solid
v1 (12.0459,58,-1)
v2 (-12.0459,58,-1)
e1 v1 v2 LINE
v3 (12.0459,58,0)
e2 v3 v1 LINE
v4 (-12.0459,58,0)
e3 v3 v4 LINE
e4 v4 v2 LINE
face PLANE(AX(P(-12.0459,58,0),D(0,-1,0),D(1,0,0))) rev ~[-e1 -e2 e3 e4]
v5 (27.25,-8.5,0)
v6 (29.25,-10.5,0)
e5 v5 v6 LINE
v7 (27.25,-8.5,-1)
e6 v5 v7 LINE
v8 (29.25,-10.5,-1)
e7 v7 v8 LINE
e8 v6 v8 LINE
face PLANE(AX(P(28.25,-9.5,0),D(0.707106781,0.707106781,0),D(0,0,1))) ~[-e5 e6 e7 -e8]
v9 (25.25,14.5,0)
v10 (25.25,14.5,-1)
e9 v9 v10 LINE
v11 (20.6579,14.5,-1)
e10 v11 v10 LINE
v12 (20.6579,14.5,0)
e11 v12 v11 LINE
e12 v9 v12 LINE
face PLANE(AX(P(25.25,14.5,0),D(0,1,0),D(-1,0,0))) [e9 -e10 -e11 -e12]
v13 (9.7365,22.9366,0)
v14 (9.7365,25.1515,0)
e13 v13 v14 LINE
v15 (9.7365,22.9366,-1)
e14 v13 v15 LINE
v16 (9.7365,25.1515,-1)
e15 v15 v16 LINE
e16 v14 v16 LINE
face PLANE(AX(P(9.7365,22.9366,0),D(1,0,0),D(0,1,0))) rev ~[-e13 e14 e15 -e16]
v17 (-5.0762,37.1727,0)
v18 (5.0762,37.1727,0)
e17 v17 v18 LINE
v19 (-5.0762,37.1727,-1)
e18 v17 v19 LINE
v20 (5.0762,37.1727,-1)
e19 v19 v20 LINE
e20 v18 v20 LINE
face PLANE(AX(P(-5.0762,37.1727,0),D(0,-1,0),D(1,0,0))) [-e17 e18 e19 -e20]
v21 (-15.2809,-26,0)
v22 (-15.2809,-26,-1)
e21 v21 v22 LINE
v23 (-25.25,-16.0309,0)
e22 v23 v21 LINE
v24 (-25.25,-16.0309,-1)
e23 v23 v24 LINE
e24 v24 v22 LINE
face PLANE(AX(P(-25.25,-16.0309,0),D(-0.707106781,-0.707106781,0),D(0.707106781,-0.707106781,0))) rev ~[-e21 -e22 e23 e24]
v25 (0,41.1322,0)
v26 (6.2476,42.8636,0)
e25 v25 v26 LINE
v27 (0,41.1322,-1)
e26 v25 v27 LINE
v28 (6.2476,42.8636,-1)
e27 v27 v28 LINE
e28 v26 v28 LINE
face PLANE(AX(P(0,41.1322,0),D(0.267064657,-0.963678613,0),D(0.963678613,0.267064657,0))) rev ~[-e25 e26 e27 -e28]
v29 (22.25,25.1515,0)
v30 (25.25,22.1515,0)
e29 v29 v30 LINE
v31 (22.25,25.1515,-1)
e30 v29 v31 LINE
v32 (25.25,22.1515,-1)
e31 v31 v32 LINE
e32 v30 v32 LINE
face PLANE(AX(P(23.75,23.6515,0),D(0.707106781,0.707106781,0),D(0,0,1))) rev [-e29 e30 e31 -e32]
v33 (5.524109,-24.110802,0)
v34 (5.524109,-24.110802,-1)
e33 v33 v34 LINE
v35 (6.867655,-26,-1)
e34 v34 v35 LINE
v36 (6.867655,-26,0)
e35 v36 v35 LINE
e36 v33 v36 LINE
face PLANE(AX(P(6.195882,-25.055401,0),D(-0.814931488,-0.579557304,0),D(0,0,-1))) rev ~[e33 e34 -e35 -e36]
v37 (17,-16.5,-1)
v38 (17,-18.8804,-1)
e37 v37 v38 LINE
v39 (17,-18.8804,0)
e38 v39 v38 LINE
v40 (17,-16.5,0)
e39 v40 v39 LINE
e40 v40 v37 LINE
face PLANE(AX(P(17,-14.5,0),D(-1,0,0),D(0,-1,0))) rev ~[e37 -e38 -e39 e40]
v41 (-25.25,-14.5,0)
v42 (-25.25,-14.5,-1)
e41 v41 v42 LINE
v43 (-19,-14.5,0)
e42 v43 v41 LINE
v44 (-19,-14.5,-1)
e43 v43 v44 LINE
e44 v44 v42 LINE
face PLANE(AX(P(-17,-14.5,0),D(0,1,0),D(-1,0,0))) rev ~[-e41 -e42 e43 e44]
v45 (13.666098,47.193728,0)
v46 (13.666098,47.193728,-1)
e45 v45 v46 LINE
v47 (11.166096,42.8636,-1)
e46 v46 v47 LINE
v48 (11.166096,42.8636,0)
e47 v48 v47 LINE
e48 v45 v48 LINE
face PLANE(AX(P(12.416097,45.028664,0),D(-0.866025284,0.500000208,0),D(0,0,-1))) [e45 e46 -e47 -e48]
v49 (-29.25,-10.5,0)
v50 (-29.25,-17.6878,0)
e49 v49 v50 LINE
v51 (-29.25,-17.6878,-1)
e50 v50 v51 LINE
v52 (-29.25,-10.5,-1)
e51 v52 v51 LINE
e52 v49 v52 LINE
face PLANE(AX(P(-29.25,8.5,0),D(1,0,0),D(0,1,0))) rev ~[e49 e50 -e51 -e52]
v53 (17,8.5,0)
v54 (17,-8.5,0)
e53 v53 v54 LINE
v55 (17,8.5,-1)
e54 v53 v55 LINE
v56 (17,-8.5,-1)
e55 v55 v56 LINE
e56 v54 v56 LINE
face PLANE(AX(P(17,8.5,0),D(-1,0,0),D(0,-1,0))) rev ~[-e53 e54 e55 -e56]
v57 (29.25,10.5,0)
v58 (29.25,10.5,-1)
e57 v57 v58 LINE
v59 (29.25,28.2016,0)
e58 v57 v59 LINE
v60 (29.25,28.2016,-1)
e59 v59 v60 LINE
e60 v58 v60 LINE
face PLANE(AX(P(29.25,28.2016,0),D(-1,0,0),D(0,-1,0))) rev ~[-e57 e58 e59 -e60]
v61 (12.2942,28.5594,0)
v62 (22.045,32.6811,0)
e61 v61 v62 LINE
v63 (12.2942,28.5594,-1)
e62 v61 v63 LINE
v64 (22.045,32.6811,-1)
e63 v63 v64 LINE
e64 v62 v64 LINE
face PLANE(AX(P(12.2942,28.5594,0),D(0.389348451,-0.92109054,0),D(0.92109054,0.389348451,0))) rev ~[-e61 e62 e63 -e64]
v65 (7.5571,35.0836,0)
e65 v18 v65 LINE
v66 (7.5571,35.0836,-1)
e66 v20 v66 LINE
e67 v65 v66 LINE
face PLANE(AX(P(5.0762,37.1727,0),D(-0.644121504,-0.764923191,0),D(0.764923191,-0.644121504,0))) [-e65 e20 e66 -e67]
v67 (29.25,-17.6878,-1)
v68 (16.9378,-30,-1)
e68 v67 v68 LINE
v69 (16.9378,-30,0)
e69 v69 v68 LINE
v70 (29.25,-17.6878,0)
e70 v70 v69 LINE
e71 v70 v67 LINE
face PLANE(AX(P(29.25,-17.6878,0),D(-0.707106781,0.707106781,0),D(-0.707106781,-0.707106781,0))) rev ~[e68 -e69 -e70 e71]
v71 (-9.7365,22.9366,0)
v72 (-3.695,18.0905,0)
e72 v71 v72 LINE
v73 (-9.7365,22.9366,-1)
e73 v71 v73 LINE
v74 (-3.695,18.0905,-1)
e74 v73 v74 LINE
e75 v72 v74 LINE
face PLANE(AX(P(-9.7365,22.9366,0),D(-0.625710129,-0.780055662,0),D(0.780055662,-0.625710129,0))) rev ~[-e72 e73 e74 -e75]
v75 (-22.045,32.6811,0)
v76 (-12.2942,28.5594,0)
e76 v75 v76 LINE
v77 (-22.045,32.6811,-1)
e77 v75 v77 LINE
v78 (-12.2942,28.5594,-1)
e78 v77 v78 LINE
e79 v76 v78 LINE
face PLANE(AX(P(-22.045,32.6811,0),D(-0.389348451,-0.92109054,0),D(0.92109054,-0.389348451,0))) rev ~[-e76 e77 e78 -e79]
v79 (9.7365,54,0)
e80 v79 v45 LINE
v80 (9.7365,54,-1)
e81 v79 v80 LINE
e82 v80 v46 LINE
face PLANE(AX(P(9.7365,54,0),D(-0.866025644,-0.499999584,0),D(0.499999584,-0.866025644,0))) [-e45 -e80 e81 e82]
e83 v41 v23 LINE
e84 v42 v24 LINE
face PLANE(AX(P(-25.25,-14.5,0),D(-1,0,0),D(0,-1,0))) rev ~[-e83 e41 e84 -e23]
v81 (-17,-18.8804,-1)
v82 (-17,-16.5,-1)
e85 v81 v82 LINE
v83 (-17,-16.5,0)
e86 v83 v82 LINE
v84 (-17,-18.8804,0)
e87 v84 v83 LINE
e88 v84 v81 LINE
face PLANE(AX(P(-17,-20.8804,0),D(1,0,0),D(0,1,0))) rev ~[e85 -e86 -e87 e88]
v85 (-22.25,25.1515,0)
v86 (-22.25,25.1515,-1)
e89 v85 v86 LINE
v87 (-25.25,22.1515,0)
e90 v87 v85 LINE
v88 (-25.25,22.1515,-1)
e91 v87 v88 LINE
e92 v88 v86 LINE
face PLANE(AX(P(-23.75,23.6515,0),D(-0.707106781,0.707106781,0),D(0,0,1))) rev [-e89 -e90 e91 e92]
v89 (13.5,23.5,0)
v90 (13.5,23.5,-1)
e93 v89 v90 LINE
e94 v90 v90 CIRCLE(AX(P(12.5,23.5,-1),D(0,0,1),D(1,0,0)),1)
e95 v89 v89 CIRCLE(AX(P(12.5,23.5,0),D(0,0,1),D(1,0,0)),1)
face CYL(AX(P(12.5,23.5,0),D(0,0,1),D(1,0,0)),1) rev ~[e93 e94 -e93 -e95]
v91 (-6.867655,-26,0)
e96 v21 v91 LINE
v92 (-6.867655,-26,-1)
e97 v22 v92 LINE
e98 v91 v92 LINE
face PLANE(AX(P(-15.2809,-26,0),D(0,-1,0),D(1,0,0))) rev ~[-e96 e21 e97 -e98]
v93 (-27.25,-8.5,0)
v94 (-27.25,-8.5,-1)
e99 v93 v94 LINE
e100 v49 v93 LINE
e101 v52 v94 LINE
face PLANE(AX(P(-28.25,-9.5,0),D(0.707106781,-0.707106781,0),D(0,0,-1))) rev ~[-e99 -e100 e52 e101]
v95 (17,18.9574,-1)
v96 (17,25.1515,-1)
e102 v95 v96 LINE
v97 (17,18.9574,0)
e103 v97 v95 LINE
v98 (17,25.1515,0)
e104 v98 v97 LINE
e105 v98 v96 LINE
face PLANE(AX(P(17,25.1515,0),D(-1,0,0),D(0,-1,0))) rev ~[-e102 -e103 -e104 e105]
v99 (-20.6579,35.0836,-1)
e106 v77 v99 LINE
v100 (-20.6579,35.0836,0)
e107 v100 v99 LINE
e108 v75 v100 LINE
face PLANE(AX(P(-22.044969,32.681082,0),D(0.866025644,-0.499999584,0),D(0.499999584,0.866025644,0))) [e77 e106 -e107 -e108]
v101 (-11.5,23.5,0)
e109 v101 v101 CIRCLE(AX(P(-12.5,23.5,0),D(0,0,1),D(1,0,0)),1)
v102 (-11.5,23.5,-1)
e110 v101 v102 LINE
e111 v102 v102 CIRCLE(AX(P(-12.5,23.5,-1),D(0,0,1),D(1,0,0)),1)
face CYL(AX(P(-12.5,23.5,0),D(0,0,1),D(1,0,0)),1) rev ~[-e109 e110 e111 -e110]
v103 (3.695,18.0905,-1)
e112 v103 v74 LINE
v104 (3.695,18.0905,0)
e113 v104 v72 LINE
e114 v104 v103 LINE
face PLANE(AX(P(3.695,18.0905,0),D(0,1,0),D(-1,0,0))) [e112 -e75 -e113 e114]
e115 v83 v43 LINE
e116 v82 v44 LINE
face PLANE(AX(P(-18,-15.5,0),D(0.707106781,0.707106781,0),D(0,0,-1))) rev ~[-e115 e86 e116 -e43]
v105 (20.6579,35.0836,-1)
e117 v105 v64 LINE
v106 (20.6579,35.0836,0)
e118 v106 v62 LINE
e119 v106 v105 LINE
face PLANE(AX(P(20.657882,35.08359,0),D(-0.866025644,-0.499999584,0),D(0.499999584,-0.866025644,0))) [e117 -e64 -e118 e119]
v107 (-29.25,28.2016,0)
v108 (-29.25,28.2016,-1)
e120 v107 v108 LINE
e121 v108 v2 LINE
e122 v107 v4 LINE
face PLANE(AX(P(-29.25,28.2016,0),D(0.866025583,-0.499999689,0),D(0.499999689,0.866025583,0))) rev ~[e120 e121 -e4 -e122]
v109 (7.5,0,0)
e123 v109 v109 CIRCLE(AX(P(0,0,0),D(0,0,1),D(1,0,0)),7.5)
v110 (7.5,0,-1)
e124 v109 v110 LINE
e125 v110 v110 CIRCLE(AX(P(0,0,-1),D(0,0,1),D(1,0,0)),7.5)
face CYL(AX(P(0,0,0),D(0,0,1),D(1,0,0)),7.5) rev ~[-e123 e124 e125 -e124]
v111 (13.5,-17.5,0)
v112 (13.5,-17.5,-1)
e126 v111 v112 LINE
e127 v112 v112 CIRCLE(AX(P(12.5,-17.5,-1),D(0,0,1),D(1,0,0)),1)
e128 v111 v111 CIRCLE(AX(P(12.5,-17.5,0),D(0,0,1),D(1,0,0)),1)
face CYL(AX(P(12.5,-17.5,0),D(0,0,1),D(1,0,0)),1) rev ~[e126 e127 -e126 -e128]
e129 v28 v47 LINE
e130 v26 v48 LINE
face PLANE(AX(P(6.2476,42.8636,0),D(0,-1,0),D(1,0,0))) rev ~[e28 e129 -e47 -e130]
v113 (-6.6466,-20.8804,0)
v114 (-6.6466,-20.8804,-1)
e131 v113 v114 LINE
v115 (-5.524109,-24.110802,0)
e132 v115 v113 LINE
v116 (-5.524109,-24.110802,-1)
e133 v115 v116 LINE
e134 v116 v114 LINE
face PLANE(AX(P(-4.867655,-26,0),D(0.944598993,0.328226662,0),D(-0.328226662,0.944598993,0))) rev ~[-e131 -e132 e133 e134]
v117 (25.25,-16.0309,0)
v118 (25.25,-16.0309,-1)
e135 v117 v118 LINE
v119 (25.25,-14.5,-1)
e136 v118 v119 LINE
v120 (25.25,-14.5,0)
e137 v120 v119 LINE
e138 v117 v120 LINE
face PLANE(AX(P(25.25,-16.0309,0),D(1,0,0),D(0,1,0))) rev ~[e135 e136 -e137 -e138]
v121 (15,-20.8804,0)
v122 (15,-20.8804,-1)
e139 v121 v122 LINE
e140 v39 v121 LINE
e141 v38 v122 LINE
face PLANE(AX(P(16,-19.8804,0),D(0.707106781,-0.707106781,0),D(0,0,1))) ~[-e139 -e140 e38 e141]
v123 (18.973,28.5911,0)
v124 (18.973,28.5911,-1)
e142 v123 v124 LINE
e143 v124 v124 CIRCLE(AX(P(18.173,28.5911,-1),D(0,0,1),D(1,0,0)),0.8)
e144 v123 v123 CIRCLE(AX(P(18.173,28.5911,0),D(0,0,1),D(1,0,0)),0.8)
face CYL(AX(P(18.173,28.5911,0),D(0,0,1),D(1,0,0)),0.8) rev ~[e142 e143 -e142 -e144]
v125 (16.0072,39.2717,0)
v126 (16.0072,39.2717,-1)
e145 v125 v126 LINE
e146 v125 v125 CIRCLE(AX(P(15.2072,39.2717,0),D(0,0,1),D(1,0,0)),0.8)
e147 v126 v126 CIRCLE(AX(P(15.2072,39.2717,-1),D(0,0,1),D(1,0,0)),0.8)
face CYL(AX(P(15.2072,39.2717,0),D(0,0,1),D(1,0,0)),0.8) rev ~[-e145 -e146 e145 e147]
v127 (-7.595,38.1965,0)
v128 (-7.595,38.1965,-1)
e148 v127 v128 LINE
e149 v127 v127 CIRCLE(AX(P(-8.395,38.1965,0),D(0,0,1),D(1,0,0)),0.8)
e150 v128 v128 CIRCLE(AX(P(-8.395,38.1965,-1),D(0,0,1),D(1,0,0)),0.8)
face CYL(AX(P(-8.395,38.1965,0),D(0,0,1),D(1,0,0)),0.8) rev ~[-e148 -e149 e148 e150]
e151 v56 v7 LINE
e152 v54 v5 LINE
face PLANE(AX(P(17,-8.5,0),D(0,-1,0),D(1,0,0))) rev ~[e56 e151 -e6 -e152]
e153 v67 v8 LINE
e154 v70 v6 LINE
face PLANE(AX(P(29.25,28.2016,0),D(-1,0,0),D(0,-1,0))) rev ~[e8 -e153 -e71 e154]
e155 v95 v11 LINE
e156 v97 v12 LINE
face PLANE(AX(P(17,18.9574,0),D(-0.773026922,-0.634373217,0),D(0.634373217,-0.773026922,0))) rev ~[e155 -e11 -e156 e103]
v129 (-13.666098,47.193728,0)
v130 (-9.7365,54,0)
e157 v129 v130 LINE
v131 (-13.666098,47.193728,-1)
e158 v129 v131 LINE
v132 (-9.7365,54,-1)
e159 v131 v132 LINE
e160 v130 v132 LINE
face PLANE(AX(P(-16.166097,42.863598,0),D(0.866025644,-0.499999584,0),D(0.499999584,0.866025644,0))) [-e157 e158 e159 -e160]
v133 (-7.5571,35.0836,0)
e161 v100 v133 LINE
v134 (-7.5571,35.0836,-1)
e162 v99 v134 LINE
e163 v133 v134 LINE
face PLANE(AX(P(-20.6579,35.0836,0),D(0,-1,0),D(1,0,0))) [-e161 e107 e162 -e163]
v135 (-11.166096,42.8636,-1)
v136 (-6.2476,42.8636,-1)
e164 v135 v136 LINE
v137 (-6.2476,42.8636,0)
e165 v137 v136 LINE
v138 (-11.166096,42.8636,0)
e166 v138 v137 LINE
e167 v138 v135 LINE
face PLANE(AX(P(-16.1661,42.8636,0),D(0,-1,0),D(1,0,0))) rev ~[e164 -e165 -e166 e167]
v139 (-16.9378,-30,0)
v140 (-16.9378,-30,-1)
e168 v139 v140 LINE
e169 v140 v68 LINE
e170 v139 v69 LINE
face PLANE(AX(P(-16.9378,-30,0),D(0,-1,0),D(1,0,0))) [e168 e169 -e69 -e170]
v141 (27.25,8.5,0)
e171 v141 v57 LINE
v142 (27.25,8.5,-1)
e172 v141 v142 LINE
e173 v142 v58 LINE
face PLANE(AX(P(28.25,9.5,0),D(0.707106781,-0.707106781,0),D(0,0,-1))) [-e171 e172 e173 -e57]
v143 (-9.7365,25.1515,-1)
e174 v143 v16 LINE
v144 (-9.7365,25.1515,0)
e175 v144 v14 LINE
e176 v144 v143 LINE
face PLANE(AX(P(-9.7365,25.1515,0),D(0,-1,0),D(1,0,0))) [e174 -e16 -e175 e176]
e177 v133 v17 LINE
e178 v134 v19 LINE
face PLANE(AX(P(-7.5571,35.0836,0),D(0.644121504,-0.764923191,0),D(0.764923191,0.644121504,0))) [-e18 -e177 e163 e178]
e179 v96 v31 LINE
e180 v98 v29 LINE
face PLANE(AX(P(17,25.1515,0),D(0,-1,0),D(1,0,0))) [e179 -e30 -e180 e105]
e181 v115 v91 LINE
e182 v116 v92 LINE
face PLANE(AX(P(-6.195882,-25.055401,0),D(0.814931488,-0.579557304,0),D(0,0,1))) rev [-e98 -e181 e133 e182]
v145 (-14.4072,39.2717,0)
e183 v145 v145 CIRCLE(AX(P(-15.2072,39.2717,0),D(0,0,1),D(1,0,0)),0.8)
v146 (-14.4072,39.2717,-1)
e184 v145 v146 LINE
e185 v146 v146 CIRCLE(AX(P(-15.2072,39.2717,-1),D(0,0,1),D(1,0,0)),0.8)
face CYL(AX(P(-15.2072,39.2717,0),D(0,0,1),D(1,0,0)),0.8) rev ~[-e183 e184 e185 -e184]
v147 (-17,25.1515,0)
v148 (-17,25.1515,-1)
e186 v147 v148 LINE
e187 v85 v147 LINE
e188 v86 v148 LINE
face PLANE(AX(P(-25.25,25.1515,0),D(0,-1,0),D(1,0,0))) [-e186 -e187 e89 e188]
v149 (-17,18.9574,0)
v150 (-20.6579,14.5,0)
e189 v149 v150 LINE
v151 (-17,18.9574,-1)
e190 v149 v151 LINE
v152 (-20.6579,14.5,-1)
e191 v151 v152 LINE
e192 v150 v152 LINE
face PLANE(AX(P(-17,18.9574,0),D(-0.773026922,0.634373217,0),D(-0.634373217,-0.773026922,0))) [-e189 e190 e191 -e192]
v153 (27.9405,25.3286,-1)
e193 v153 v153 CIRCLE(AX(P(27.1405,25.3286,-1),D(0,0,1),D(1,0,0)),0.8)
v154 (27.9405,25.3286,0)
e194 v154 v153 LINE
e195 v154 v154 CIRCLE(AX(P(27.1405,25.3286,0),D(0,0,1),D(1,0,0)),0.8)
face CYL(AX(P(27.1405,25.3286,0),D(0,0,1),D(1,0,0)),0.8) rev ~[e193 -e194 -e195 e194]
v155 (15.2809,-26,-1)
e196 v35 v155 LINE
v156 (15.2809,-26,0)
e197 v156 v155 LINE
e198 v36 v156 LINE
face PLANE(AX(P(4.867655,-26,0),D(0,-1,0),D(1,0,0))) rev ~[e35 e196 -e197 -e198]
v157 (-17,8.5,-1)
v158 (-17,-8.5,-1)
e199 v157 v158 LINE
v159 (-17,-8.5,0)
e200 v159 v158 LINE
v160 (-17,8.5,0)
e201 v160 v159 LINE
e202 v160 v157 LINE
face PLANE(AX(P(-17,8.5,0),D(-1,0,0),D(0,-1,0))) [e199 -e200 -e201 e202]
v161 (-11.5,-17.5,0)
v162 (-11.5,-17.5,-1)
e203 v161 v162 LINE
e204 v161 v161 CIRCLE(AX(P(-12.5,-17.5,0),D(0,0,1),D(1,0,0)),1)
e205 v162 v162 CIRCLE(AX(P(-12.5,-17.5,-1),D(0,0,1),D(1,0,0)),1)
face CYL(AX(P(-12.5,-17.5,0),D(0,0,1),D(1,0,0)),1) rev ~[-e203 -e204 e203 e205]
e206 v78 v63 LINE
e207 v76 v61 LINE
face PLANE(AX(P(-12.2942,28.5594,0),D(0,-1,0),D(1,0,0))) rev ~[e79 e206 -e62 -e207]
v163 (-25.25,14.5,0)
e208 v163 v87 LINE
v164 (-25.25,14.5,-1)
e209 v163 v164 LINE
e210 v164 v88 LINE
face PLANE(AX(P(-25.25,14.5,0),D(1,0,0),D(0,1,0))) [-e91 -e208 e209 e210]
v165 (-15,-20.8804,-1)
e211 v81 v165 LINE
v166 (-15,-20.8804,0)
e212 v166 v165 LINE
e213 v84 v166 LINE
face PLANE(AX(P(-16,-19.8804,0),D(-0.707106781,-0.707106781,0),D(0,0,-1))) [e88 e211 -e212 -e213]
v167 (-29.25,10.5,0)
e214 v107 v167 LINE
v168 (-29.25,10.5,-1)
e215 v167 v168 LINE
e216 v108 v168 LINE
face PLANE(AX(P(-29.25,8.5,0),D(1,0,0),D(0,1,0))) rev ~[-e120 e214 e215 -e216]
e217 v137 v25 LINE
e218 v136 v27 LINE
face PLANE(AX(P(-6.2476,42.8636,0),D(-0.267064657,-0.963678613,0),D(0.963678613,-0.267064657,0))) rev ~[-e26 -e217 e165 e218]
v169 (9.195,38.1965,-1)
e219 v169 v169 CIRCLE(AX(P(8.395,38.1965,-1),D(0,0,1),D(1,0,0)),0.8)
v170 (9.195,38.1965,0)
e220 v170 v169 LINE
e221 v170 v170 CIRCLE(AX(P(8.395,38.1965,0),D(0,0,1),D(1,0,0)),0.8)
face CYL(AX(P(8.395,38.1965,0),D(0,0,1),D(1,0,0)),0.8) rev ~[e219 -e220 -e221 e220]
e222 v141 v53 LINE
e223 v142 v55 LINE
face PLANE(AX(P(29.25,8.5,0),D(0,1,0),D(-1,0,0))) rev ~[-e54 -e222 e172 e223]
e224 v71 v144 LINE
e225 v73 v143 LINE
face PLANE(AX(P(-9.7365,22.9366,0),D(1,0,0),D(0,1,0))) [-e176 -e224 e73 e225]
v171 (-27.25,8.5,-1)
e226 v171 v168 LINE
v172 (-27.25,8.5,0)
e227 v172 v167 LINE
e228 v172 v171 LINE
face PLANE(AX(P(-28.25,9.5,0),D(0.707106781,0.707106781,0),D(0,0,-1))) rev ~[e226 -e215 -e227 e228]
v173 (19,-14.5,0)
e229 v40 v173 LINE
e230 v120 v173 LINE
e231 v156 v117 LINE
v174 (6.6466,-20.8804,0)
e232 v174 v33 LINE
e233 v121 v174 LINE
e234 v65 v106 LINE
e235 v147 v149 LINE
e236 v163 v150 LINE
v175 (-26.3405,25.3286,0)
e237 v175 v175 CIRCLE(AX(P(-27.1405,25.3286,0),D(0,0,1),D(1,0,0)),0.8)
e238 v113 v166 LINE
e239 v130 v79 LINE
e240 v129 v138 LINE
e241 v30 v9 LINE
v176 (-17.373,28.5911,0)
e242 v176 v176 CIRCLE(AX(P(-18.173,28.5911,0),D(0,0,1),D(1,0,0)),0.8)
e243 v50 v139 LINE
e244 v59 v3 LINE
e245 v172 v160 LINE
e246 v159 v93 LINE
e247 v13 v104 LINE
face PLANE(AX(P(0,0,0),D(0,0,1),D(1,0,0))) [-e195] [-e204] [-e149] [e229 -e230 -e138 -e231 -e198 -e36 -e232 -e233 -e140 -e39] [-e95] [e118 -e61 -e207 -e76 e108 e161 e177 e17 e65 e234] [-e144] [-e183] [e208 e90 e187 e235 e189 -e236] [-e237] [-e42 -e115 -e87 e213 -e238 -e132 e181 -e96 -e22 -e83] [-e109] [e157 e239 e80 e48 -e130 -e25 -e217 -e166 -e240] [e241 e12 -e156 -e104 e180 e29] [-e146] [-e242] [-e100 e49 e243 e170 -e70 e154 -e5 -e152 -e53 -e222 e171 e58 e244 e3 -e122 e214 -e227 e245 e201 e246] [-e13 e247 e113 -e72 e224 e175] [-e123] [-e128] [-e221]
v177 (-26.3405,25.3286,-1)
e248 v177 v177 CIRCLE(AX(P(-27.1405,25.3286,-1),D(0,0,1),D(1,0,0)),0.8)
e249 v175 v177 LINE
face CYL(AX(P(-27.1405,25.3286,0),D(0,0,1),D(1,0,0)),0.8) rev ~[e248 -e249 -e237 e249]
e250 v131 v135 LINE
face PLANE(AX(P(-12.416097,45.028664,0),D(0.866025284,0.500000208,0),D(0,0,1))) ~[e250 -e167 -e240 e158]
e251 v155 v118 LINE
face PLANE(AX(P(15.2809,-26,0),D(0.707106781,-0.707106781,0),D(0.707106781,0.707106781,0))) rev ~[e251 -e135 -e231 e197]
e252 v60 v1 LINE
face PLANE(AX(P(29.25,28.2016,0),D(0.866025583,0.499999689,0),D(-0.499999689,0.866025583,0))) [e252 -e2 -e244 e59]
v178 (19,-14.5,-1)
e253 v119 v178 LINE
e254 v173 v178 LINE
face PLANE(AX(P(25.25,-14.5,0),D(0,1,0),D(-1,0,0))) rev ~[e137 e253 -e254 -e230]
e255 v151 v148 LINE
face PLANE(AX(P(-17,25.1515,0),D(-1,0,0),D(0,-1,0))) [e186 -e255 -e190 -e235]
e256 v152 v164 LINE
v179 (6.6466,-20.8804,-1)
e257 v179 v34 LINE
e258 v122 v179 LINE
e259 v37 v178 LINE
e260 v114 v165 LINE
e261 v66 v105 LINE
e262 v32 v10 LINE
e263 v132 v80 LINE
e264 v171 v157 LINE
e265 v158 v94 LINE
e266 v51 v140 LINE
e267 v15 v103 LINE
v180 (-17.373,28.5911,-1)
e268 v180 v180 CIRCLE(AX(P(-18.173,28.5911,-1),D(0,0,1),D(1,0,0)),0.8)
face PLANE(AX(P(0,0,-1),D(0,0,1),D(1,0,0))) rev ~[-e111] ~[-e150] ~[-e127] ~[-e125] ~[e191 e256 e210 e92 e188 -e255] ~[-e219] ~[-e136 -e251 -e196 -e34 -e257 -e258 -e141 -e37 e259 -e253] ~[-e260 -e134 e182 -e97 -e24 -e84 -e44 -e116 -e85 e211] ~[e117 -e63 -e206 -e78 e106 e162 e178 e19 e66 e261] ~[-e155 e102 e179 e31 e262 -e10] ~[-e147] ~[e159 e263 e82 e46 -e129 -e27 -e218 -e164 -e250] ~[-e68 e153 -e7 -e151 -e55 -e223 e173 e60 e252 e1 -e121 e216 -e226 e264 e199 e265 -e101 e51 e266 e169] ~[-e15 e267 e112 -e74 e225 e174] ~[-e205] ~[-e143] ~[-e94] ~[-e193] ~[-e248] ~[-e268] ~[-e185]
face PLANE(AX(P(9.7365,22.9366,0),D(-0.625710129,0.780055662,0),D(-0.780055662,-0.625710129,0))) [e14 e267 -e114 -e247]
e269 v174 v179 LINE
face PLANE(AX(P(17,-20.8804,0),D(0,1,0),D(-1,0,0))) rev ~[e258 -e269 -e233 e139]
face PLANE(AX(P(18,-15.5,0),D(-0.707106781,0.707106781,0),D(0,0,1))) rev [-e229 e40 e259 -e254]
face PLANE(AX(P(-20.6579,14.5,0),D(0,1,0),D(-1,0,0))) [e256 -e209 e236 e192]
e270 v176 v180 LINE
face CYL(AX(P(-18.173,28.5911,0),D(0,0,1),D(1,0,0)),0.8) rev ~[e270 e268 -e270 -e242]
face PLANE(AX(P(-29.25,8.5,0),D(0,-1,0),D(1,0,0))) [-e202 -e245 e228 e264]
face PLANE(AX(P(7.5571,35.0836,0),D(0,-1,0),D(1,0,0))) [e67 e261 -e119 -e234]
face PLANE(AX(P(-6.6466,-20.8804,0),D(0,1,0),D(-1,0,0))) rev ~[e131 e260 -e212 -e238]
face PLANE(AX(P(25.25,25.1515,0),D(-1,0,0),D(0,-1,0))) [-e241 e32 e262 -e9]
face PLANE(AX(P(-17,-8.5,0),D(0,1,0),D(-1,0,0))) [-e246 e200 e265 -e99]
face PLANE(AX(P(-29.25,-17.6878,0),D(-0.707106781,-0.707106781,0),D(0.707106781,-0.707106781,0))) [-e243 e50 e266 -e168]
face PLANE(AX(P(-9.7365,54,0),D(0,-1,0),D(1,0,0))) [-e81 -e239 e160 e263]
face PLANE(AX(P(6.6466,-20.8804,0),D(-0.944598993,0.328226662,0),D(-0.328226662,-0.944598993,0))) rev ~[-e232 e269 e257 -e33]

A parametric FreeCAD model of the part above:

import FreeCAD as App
import Part
import Sketcher
Q = App.Units.Quantity


def edges_at(feature, points):
    """Names of the edges that pass closest to the given points."""
    edges = feature.Shape.Edges
    near = lambda p: min(range(len(edges)), key=lambda i: edges[i].distToShape(Part.Vertex(*p))[0])
    return sorted({f"Edge{near(p) + 1}" for p in points})


def add_polygon(sketch, points):
    """Adds a closed chain of lines whose ends are joined by coincident constraints."""
    first, n = sketch.GeometryCount, len(points)
    for a, b in zip(points, points[1:] + points[:1]):
        sketch.addGeometry(Part.LineSegment(App.Vector(*a, 0), App.Vector(*b, 0)), False)
    for i in range(n):
        sketch.addConstraint(Sketcher.Constraint("Coincident", first + i, 2, first + (i + 1) % n, 1))

doc = App.newDocument("Part")
body = doc.addObject("PartDesign::Body", "Body")

sketch1 = doc.addObject("Sketcher::SketchObject", "Sketch")
body.addObject(sketch1)
sketch1.AttachmentSupport = (doc.XY_Plane, [""])
sketch1.MapMode = "FlatFace"
add_polygon(sketch1, [(29.25, 58), (-29.25, 58), (-29.25, -30), (29.25, -30)])
sketch1.addConstraint([
    Sketcher.Constraint("Horizontal", 0),
    Sketcher.Constraint("Vertical", 1),
    Sketcher.Constraint("Horizontal", 2),
    Sketcher.Constraint("Vertical", 3),
    Sketcher.Constraint("DistanceY", 1, 2, 1, 1, 88.0),
    Sketcher.Constraint("DistanceX", 0, 2, 0, 1, 58.5),
    Sketcher.Constraint("DistanceY", -1, 1, 0, 2, 58.0),
    Sketcher.Constraint("DistanceX", 0, 2, -1, 1, 29.25),
])
pad1 = doc.addObject("PartDesign::Pad", "Pad")
body.addObject(pad1)
pad1.Profile = sketch1
pad1.Length = 1
pad1.Reversed = True

sketch2 = doc.addObject("Sketcher::SketchObject", "Sketch001")
body.addObject(sketch2)
sketch2.AttachmentSupport = (doc.XY_Plane, [""])
sketch2.MapMode = "FlatFace"
sketch2.addGeometry([
    Part.Circle(App.Vector(-12.5, -17.5, 0), App.Vector(0, 0, 1), 1),
    Part.Circle(App.Vector(12.5, -17.5, 0), App.Vector(0, 0, 1), 1),
    Part.Circle(App.Vector(12.5, 23.5, 0), App.Vector(0, 0, 1), 1),
    Part.Circle(App.Vector(-12.5, 23.5, 0), App.Vector(0, 0, 1), 1),
], False)
sketch2.addConstraint([
    Sketcher.Constraint("Equal", 0, 1),
    Sketcher.Constraint("Equal", 1, 2),
    Sketcher.Constraint("Equal", 2, 3),
    Sketcher.Constraint("Symmetric", 0, 3, 1, 3, -2),
    Sketcher.Constraint("Symmetric", 2, 3, 3, 3, -2),
    Sketcher.Constraint("Vertical", 1, 3, 2, 3),
    Sketcher.Constraint("Diameter", 0, 2.0),
    Sketcher.Constraint("DistanceX", 0, 3, 1, 3, 25.0),
    Sketcher.Constraint("DistanceY", 1, 3, 2, 3, 41.0),
    Sketcher.Constraint("DistanceY", 0, 3, -1, 1, 17.5),
])
pocket1 = doc.addObject("PartDesign::Pocket", "Pocket")
body.addObject(pocket1)
pocket1.Profile = sketch2
pocket1.Length = 1

sketch3 = doc.addObject("Sketcher::SketchObject", "Sketch002")
body.addObject(sketch3)
sketch3.AttachmentSupport = (doc.XY_Plane, [""])
sketch3.MapMode = "FlatFace"
sketch3.addGeometry(Part.Circle(App.Vector(0, 0, 0), App.Vector(0, 0, 1), 7.5), False)
sketch3.addConstraint([
    Sketcher.Constraint("Coincident", 0, 3, -1, 1),
    Sketcher.Constraint("Diameter", 0, 15.0),
])
pocket2 = doc.addObject("PartDesign::Pocket", "Pocket001")
body.addObject(pocket2)
pocket2.Profile = sketch3
pocket2.Length = 1

sketch4 = doc.addObject("Sketcher::SketchObject", "Sketch003")
body.addObject(sketch4)
sketch4.AttachmentSupport = (doc.XY_Plane, [""])
sketch4.MapMode = "FlatFace"
add_polygon(sketch4, [(29.25, -8.5), (29.25, 8.5), (17, 8.5), (17, -8.5)])
add_polygon(sketch4, [(-17, 8.5), (-29.25, 8.5), (-29.25, -8.5), (-17, -8.5)])
sketch4.addConstraint([
    Sketcher.Constraint("Vertical", 0),
    Sketcher.Constraint("Horizontal", 1),
    Sketcher.Constraint("Vertical", 2),
    Sketcher.Constraint("Horizontal", 3),
    Sketcher.Constraint("Horizontal", 4),
    Sketcher.Constraint("Vertical", 5),
    Sketcher.Constraint("Horizontal", 6),
    Sketcher.Constraint("Vertical", 7),
    Sketcher.Constraint("Symmetric", 3, 2, 4, 2, -1, 1),
    Sketcher.Constraint("Symmetric", 1, 2, 6, 2, -1, 1),
    Sketcher.Constraint("Horizontal", 1, 2, 4, 2),
    Sketcher.Constraint("DistanceY", 0, 1, 0, 2, 17.0),
    Sketcher.Constraint("DistanceX", -1, 1, 1, 2, 17.0),
    Sketcher.Constraint("DistanceX", 4, 2, 0, 2, 58.5),
])
pocket3 = doc.addObject("PartDesign::Pocket", "Pocket002")
body.addObject(pocket3)
pocket3.Profile = sketch4
pocket3.Length = 1

sketch5 = doc.addObject("Sketcher::SketchObject", "Sketch004")
body.addObject(sketch5)
sketch5.AttachmentSupport = (doc.XY_Plane, [""])
sketch5.MapMode = "FlatFace"
sketch5.addGeometry([
    Part.Circle(App.Vector(-8.395, 38.1965, 0), App.Vector(0, 0, 1), 0.8),
    Part.Circle(App.Vector(-15.2072, 39.2717, 0), App.Vector(0, 0, 1), 0.8),
    Part.Circle(App.Vector(8.395, 38.1965, 0), App.Vector(0, 0, 1), 0.8),
    Part.Circle(App.Vector(15.2072, 39.2717, 0), App.Vector(0, 0, 1), 0.8),
    Part.Circle(App.Vector(18.173, 28.5911, 0), App.Vector(0, 0, 1), 0.8),
    Part.Circle(App.Vector(27.1405, 25.3286, 0), App.Vector(0, 0, 1), 0.8),
], False)
sketch5.addConstraint([
    Sketcher.Constraint("Equal", 0, 1),
    Sketcher.Constraint("Equal", 1, 2),
    Sketcher.Constraint("Equal", 2, 3),
    Sketcher.Constraint("Equal", 3, 4),
    Sketcher.Constraint("Equal", 4, 5),
    Sketcher.Constraint("Symmetric", 0, 3, 2, 3, -2),
    Sketcher.Constraint("Symmetric", 1, 3, 3, 3, -2),
    Sketcher.Constraint("Diameter", 0, 1.6),
    Sketcher.Constraint("DistanceX", 0, 3, 2, 3, 16.79),
    Sketcher.Constraint("DistanceX", -1, 1, 4, 3, 18.173),
    Sketcher.Constraint("DistanceY", -1, 1, 4, 3, 28.591),
    Sketcher.Constraint("DistanceY", 5, 3, 3, 3, 13.943),
    Sketcher.Constraint("DistanceY", 5, 3, 2, 3, 12.868),
    Sketcher.Constraint("DistanceY", -1, 1, 0, 3, 38.1965),
    Sketcher.Constraint("DistanceX", 1, 3, -1, 1, 15.2072),
    Sketcher.Constraint("DistanceX", -1, 1, 5, 3, 27.1405),
])
pocket4 = doc.addObject("PartDesign::Pocket", "Pocket003")
body.addObject(pocket4)
pocket4.Profile = sketch5
pocket4.Length = 1

sketch6 = doc.addObject("Sketcher::SketchObject", "Sketch005")
body.addObject(sketch6)
sketch6.AttachmentSupport = (doc.XY_Plane, [""])
sketch6.MapMode = "FlatFace"
sketch6.addGeometry([
    Part.Circle(App.Vector(-18.173, 28.5911, 0), App.Vector(0, 0, 1), 0.8),
    Part.Circle(App.Vector(-27.1405, 25.3286, 0), App.Vector(0, 0, 1), 0.8),
], False)
sketch6.addConstraint([
    Sketcher.Constraint("Equal", 0, 1),
    Sketcher.Constraint("Diameter", 0, 1.6),
    Sketcher.Constraint("DistanceX", 0, 3, -1, 1, 18.173),
    Sketcher.Constraint("DistanceY", -1, 1, 0, 3, 28.591),
    Sketcher.Constraint("DistanceX", 1, 3, -1, 1, 27.1405),
    Sketcher.Constraint("DistanceY", -1, 1, 1, 3, 25.3286),
])
pocket5 = doc.addObject("PartDesign::Pocket", "Pocket004")
body.addObject(pocket5)
pocket5.Profile = sketch6
pocket5.Length = 10

sketch7 = doc.addObject("Sketcher::SketchObject", "Sketch006")
body.addObject(sketch7)
sketch7.AttachmentSupport = (doc.XY_Plane, [""])
sketch7.MapMode = "FlatFace"
add_polygon(sketch7, [(29.25, 28.2016), (29.25, 58), (12.0459, 58)])
add_polygon(sketch7, [(-29.25, 28.2016), (-12.0459, 58), (-29.25, 58)])
add_polygon(sketch7, [(29.25, -30), (29.25, -17.6878), (16.9378, -30)])
add_polygon(sketch7, [(-29.25, -30), (-16.9378, -30), (-29.25, -17.6878)])
add_polygon(sketch7, [(9.7365, 54), (-9.7365, 54), (-16.1661, 42.8636), (-6.2476, 42.8636), (0, 41.1322), (6.2476, 42.8636), (16.166097, 42.863598)])
add_polygon(sketch7, [(-7.5571, 35.0836), (-20.657882, 35.08359), (-22.045, 32.6811), (-12.2942, 28.5594), (12.2942, 28.5594), (22.044969, 32.681082), (20.6579, 35.0836), (7.5571, 35.0836), (5.0762, 37.1727), (-5.0762, 37.1727)])
add_polygon(sketch7, [(-17, 25.1515), (-25.25, 25.1515), (-25.25, 14.5), (-17, 14.5)])
add_polygon(sketch7, [(25.25, 14.5), (25.25, 25.1515), (17, 25.1515), (17, 14.5)])
add_polygon(sketch7, [(9.7365, 25.1515), (-9.7365, 25.1515), (-9.7365, 22.9366), (-3.695, 18.0905), (3.695, 18.0905), (9.7365, 22.9366)])
add_polygon(sketch7, [(-17, -20.8804), (-17, -14.5), (-25.25, -14.5), (-25.25, -16.0309), (-15.2809, -26), (-4.867655, -26), (-6.6466, -20.8804)])
add_polygon(sketch7, [(6.6466, -20.8804), (4.867655, -26), (15.2809, -26), (25.25, -16.0309), (25.25, -14.5), (17, -14.5), (17, -20.8804)])
sketch7.addConstraint([
    Sketcher.Constraint("Vertical", 0),
    Sketcher.Constraint("Horizontal", 1),
    Sketcher.Constraint("Horizontal", 4),
    Sketcher.Constraint("Vertical", 5),
    Sketcher.Constraint("Vertical", 6),
    Sketcher.Constraint("Horizontal", 8),
    Sketcher.Constraint("Horizontal", 9),
    Sketcher.Constraint("Vertical", 11),
    Sketcher.Constraint("Horizontal", 12),
    Sketcher.Constraint("Horizontal", 14),
    Sketcher.Constraint("Horizontal", 17),
    Sketcher.Constraint("Horizontal", 19),
    Sketcher.Constraint("Horizontal", 22),
    Sketcher.Constraint("Horizontal", 25),
    Sketcher.Constraint("Horizontal", 27),
    Sketcher.Constraint("Horizontal", 29),
    Sketcher.Constraint("Vertical", 30),
    Sketcher.Constraint("Horizontal", 31),
    Sketcher.Constraint("Vertical", 32),
    Sketcher.Constraint("Vertical", 33),
    Sketcher.Constraint("Horizontal", 34),
    Sketcher.Constraint("Vertical", 35),
    Sketcher.Constraint("Horizontal", 36),
    Sketcher.Constraint("Horizontal", 37),
    Sketcher.Constraint("Vertical", 38),
    Sketcher.Constraint("Horizontal", 40),
    Sketcher.Constraint("Vertical", 42),
    Sketcher.Constraint("Vertical", 43),
    Sketcher.Constraint("Horizontal", 44),
    Sketcher.Constraint("Vertical", 45),
    Sketcher.Constraint("Horizontal", 47),
    Sketcher.Constraint("Horizontal", 49),
    Sketcher.Constraint("Horizontal", 51),
    Sketcher.Constraint("Vertical", 53),
    Sketcher.Constraint("Horizontal", 54),
    Sketcher.Constraint("Vertical", 55),
    Sketcher.Constraint("Horizontal", 56),
    Sketcher.Constraint("Symmetric", 35, 2, 43, 2, -1, 1),
    Sketcher.Constraint("Symmetric", 30, 2, 53, 2, -1, 1),
    Sketcher.Constraint("Symmetric", 1, 2, 3, 2, -2),
    Sketcher.Constraint("Symmetric", 2, 2, 5, 2, -2),
    Sketcher.Constraint("Symmetric", 7, 2, 9, 2, -2),
    Sketcher.Constraint("Symmetric", 6, 2, 10, 2, -2),
    Sketcher.Constraint("Symmetric", 14, 2, 16, 2, -2),
    Sketcher.Constraint("Symmetric", 20, 2, 23, 2, -2),
    Sketcher.Constraint("Symmetric", 19, 2, 24, 2, -2),
    Sketcher.Constraint("Symmetric", 29, 2, 33, 2, -2),
    Sketcher.Constraint("Symmetric", 31, 2, 35, 2, -2),
    Sketcher.Constraint("Symmetric", 38, 2, 41, 2, -2),
    Sketcher.Constraint("Symmetric", 47, 2, 50, 2, -2),
    Sketcher.Constraint("Symmetric", 45, 2, 52, 2, -2),
    Sketcher.Constraint("Symmetric", 49, 2, 55, 2, -2),
    Sketcher.Constraint("PointOnObject", 15, 2, -2),
    Sketcher.Constraint("Perpendicular", 7, 10),
    Sketcher.Constraint("Parallel", 3, 13),
    Sketcher.Constraint("Parallel", 2, 18),
    Sketcher.Constraint("Parallel", 13, 20),
    Sketcher.Constraint("Parallel", 10, 46),
    Sketcher.Constraint("Perpendicular", 46, 52),
    Sketcher.Constraint("Horizontal", 34, 2, 37, 2),
    Sketcher.Constraint("Vertical", 2, 2, 6, 2),
    Sketcher.Constraint("Vertical", 12, 2, 37, 2),
    Sketcher.Constraint("Vertical", 18, 2, 41, 2),
    Sketcher.Constraint("Equal", 19, 25),
    Sketcher.Constraint("Equal", 49, 56),
    Sketcher.Constraint("Equal", 21, 23),
    Sketcher.Constraint("Equal", 26, 28),
    Sketcher.Constraint("Equal", 39, 41),
    Sketcher.Constraint("DistanceY", -1, 1, 0, 2, 58.0),
    Sketcher.Constraint("DistanceY", 7, 2, -1, 1, 30.0),
    Sketcher.Constraint("DistanceX", 31, 2, -1, 1, 17.0),
    Sketcher.Constraint("DistanceY", 12, 2, 3, 2, 4.0),
    Sketcher.Constraint("DistanceX", 5, 2, 29, 2, 4.0),
    Sketcher.Constraint("DistanceY", 9, 2, 46, 2, 4.0),
    Sketcher.Constraint("DistanceX", 4, 2, 0, 2, 58.5),
    Sketcher.Constraint("Angle", 2, Q("-60 deg")),
    Sketcher.Constraint("Angle", 26, Q("139.9002 deg")),
    Sketcher.Constraint("DistanceY", 43, 2, 31, 2, 29.0),
    Sketcher.Constraint("DistanceX", 40, 1, 40, 2, 7.39),
    Sketcher.Constraint("Angle", 15, Q("-15.4897 deg")),
    Sketcher.Constraint("Angle", 48, Q("109.1612 deg")),
    Sketcher.Constraint("DistanceX", 1, 2, 1, 1, 17.204),
    Sketcher.Constraint("DistanceX", 12, 2, 12, 1, 19.473),
    Sketcher.Constraint("DistanceY", 38, 2, 38, 1, 2.215),
    Sketcher.Constraint("DistanceY", 45, 2, 45, 1, 1.531),
    Sketcher.Constraint("DistanceY", 19, 2, 13, 2, 7.78),
    Sketcher.Constraint("DistanceX", 26, 2, 17, 2, 11.09),
    Sketcher.Constraint("DistanceY", 29, 2, 5, 2, 3.05),
    Sketcher.Constraint("Distance", 7, 17.412),
    Sketcher.Constraint("Distance", 15, 6.483),
    Sketcher.Constraint("Distance", 39, 7.745),
    Sketcher.Constraint("DistanceX", 14, 1, 14, 2, 9.9185),
    Sketcher.Constraint("DistanceX", 19, 2, 19, 1, 13.1008),
    Sketcher.Constraint("DistanceX", 22, 1, 22, 2, 24.5884),
    Sketcher.Constraint("DistanceX", 47, 1, 47, 2, 10.4132),
    Sketcher.Constraint("DistanceX", 49, 2, 49, 1, 10.3534),
    Sketcher.Constraint("DistanceX", 19, 2, -1, 1, 20.658),
    Sketcher.Constraint("DistanceX", 20, 2, -1, 1, 22.045),
    Sketcher.Constraint("DistanceY", 29, 2, 21, 2, 3.408),
])
pocket6 = doc.addObject("PartDesign::Pocket", "Pocket005")
body.addObject(pocket6)
pocket6.Profile = sketch7
pocket6.Length = 1

sketch8 = doc.addObject("Sketcher::SketchObject", "Sketch007")
body.addObject(sketch8)
sketch8.AttachmentSupport = (doc.XY_Plane, [""])
sketch8.MapMode = "FlatFace"
add_polygon(sketch8, [(-17, 18.9574), (-20.6579, 14.5), (-17, 14.5)])
add_polygon(sketch8, [(17, 14.5), (20.6579, 14.5), (17, 18.9574)])
sketch8.addConstraint([
    Sketcher.Constraint("Horizontal", 1),
    Sketcher.Constraint("Vertical", 2),
    Sketcher.Constraint("Horizontal", 3),
    Sketcher.Constraint("Vertical", 5),
    Sketcher.Constraint("Symmetric", 0, 2, 3, 2, -2),
    Sketcher.Constraint("Symmetric", 2, 2, 4, 2, -2),
    Sketcher.Constraint("DistanceX", 1, 2, -1, 1, 17.0),
    Sketcher.Constraint("DistanceY", -1, 1, 0, 2, 14.5),
    Sketcher.Constraint("DistanceX", 1, 1, 1, 2, 3.658),
    Sketcher.Constraint("DistanceY", 2, 1, 2, 2, 4.4574),
])
pad2 = doc.addObject("PartDesign::Pad", "Pad001")
body.addObject(pad2)
pad2.Profile = sketch8
pad2.Length = 1
pad2.Reversed = True
doc.recompute()

chamfer = doc.addObject("PartDesign::Chamfer", "Chamfer")
body.addObject(chamfer)
chamfer.Base = (pad2, edges_at(pad2, [
    (-29.25, 8.5, -0.5),
    (-29.25, -8.5, -0.5),
    (29.25, -8.5, -0.5),
    (29.25, 8.5, -0.5),
]))
chamfer.Size = 2
doc.recompute()

chamfer2 = doc.addObject("PartDesign::Chamfer", "Chamfer001")
body.addObject(chamfer2)
chamfer2.Base = (chamfer, edges_at(chamfer, [(-16.166, 42.864, -0.5), (16.166, 42.864, -0.5)]))
chamfer2.Size = 5
doc.recompute()

chamfer3 = doc.addObject("PartDesign::Chamfer", "Chamfer002")
body.addObject(chamfer3)
chamfer3.Base = (chamfer2, edges_at(chamfer2, [(17, -14.5, -0.5), (-17, -14.5, -0.5)]))
chamfer3.Size = 2
doc.recompute()

chamfer4 = doc.addObject("PartDesign::Chamfer", "Chamfer003")
body.addObject(chamfer4)
chamfer4.Base = (chamfer3, edges_at(chamfer3, [(17, -20.88, -0.5), (-17, -20.88, -0.5)]))
chamfer4.Size = 2
doc.recompute()

chamfer5 = doc.addObject("PartDesign::Chamfer", "Chamfer004")
body.addObject(chamfer5)
chamfer5.Base = (chamfer4, edges_at(chamfer4, [(4.868, -26, -0.5), (-4.868, -26, -0.5)]))
chamfer5.Size = 2
doc.recompute()

chamfer6 = doc.addObject("PartDesign::Chamfer", "Chamfer005")
body.addObject(chamfer6)
chamfer6.Base = (chamfer5, edges_at(chamfer5, [(25.25, 25.151, -0.5), (-25.25, 25.151, -0.5)]))
chamfer6.Size = 3

doc.recompute()
